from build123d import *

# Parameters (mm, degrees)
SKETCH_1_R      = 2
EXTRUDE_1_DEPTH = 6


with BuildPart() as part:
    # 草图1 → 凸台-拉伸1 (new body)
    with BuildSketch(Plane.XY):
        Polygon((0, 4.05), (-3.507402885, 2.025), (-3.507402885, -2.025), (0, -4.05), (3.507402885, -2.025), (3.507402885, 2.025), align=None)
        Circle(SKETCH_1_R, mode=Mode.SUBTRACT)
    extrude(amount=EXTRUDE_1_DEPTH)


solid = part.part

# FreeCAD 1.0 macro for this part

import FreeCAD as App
import Part
import Sketcher
Q = App.Units.Quantity


def add_polygon(sketch, points):
    """Adds a closed chain of lines whose ends are joined by coincident constraints."""
    first, n = sketch.GeometryCount, len(points)
    for a, b in zip(points, points[1:] + points[:1]):
        sketch.addGeometry(Part.LineSegment(App.Vector(*a, 0), App.Vector(*b, 0)), False)
    for i in range(n):
        sketch.addConstraint(Sketcher.Constraint("Coincident", first + i, 2, first + (i + 1) % n, 1))

doc = App.newDocument("Part")
body = doc.addObject("PartDesign::Body", "Body")

# Sketch on XY plane
sketch1 = body.newObject("Sketcher::SketchObject", "Sketch")
sketch1.AttachmentSupport = (doc.getObject("XY_Plane"), [""])
sketch1.MapMode = "FlatFace"
add_polygon(sketch1, [(0, 4.05), (-3.507403, 2.025), (-3.507403, -2.025), (0, -4.05), (3.507403, -2.025), (3.507403, 2.025)])  # lines 0-5
sketch1.addGeometry(Part.Circle(App.Vector(0, 0, 0), App.Vector(0, 0, 1), 2), False)  # 6
sketch1.addConstraint([
    Sketcher.Constraint("Vertical", 1),
    Sketcher.Constraint("Vertical", 4),
    Sketcher.Constraint("Coincident", 6, 3, -1, 1),
    Sketcher.Constraint("Symmetric", 0, 2, 3, 2, -1, 1),
    Sketcher.Constraint("Symmetric", 2, 2, 5, 2, -1, 1),
    Sketcher.Constraint("PointOnObject", 2, 2, -2),
    Sketcher.Constraint("Parallel", 2, 5),
    Sketcher.Constraint("Horizontal", 1, 2, 3, 2),
    Sketcher.Constraint("Diameter", 6, Q("4 mm")),
    Sketcher.Constraint("Angle", 0, Q("-150 deg")),
    Sketcher.Constraint("DistanceY", 1, 2, 1, 1, Q("4.05 mm")),
    Sketcher.Constraint("Distance", 0, Q("4.05 mm")),
])
pad1 = body.newObject("PartDesign::Pad", "Pad")
pad1.Profile = sketch1
pad1.Length = 6

doc.recompute()
